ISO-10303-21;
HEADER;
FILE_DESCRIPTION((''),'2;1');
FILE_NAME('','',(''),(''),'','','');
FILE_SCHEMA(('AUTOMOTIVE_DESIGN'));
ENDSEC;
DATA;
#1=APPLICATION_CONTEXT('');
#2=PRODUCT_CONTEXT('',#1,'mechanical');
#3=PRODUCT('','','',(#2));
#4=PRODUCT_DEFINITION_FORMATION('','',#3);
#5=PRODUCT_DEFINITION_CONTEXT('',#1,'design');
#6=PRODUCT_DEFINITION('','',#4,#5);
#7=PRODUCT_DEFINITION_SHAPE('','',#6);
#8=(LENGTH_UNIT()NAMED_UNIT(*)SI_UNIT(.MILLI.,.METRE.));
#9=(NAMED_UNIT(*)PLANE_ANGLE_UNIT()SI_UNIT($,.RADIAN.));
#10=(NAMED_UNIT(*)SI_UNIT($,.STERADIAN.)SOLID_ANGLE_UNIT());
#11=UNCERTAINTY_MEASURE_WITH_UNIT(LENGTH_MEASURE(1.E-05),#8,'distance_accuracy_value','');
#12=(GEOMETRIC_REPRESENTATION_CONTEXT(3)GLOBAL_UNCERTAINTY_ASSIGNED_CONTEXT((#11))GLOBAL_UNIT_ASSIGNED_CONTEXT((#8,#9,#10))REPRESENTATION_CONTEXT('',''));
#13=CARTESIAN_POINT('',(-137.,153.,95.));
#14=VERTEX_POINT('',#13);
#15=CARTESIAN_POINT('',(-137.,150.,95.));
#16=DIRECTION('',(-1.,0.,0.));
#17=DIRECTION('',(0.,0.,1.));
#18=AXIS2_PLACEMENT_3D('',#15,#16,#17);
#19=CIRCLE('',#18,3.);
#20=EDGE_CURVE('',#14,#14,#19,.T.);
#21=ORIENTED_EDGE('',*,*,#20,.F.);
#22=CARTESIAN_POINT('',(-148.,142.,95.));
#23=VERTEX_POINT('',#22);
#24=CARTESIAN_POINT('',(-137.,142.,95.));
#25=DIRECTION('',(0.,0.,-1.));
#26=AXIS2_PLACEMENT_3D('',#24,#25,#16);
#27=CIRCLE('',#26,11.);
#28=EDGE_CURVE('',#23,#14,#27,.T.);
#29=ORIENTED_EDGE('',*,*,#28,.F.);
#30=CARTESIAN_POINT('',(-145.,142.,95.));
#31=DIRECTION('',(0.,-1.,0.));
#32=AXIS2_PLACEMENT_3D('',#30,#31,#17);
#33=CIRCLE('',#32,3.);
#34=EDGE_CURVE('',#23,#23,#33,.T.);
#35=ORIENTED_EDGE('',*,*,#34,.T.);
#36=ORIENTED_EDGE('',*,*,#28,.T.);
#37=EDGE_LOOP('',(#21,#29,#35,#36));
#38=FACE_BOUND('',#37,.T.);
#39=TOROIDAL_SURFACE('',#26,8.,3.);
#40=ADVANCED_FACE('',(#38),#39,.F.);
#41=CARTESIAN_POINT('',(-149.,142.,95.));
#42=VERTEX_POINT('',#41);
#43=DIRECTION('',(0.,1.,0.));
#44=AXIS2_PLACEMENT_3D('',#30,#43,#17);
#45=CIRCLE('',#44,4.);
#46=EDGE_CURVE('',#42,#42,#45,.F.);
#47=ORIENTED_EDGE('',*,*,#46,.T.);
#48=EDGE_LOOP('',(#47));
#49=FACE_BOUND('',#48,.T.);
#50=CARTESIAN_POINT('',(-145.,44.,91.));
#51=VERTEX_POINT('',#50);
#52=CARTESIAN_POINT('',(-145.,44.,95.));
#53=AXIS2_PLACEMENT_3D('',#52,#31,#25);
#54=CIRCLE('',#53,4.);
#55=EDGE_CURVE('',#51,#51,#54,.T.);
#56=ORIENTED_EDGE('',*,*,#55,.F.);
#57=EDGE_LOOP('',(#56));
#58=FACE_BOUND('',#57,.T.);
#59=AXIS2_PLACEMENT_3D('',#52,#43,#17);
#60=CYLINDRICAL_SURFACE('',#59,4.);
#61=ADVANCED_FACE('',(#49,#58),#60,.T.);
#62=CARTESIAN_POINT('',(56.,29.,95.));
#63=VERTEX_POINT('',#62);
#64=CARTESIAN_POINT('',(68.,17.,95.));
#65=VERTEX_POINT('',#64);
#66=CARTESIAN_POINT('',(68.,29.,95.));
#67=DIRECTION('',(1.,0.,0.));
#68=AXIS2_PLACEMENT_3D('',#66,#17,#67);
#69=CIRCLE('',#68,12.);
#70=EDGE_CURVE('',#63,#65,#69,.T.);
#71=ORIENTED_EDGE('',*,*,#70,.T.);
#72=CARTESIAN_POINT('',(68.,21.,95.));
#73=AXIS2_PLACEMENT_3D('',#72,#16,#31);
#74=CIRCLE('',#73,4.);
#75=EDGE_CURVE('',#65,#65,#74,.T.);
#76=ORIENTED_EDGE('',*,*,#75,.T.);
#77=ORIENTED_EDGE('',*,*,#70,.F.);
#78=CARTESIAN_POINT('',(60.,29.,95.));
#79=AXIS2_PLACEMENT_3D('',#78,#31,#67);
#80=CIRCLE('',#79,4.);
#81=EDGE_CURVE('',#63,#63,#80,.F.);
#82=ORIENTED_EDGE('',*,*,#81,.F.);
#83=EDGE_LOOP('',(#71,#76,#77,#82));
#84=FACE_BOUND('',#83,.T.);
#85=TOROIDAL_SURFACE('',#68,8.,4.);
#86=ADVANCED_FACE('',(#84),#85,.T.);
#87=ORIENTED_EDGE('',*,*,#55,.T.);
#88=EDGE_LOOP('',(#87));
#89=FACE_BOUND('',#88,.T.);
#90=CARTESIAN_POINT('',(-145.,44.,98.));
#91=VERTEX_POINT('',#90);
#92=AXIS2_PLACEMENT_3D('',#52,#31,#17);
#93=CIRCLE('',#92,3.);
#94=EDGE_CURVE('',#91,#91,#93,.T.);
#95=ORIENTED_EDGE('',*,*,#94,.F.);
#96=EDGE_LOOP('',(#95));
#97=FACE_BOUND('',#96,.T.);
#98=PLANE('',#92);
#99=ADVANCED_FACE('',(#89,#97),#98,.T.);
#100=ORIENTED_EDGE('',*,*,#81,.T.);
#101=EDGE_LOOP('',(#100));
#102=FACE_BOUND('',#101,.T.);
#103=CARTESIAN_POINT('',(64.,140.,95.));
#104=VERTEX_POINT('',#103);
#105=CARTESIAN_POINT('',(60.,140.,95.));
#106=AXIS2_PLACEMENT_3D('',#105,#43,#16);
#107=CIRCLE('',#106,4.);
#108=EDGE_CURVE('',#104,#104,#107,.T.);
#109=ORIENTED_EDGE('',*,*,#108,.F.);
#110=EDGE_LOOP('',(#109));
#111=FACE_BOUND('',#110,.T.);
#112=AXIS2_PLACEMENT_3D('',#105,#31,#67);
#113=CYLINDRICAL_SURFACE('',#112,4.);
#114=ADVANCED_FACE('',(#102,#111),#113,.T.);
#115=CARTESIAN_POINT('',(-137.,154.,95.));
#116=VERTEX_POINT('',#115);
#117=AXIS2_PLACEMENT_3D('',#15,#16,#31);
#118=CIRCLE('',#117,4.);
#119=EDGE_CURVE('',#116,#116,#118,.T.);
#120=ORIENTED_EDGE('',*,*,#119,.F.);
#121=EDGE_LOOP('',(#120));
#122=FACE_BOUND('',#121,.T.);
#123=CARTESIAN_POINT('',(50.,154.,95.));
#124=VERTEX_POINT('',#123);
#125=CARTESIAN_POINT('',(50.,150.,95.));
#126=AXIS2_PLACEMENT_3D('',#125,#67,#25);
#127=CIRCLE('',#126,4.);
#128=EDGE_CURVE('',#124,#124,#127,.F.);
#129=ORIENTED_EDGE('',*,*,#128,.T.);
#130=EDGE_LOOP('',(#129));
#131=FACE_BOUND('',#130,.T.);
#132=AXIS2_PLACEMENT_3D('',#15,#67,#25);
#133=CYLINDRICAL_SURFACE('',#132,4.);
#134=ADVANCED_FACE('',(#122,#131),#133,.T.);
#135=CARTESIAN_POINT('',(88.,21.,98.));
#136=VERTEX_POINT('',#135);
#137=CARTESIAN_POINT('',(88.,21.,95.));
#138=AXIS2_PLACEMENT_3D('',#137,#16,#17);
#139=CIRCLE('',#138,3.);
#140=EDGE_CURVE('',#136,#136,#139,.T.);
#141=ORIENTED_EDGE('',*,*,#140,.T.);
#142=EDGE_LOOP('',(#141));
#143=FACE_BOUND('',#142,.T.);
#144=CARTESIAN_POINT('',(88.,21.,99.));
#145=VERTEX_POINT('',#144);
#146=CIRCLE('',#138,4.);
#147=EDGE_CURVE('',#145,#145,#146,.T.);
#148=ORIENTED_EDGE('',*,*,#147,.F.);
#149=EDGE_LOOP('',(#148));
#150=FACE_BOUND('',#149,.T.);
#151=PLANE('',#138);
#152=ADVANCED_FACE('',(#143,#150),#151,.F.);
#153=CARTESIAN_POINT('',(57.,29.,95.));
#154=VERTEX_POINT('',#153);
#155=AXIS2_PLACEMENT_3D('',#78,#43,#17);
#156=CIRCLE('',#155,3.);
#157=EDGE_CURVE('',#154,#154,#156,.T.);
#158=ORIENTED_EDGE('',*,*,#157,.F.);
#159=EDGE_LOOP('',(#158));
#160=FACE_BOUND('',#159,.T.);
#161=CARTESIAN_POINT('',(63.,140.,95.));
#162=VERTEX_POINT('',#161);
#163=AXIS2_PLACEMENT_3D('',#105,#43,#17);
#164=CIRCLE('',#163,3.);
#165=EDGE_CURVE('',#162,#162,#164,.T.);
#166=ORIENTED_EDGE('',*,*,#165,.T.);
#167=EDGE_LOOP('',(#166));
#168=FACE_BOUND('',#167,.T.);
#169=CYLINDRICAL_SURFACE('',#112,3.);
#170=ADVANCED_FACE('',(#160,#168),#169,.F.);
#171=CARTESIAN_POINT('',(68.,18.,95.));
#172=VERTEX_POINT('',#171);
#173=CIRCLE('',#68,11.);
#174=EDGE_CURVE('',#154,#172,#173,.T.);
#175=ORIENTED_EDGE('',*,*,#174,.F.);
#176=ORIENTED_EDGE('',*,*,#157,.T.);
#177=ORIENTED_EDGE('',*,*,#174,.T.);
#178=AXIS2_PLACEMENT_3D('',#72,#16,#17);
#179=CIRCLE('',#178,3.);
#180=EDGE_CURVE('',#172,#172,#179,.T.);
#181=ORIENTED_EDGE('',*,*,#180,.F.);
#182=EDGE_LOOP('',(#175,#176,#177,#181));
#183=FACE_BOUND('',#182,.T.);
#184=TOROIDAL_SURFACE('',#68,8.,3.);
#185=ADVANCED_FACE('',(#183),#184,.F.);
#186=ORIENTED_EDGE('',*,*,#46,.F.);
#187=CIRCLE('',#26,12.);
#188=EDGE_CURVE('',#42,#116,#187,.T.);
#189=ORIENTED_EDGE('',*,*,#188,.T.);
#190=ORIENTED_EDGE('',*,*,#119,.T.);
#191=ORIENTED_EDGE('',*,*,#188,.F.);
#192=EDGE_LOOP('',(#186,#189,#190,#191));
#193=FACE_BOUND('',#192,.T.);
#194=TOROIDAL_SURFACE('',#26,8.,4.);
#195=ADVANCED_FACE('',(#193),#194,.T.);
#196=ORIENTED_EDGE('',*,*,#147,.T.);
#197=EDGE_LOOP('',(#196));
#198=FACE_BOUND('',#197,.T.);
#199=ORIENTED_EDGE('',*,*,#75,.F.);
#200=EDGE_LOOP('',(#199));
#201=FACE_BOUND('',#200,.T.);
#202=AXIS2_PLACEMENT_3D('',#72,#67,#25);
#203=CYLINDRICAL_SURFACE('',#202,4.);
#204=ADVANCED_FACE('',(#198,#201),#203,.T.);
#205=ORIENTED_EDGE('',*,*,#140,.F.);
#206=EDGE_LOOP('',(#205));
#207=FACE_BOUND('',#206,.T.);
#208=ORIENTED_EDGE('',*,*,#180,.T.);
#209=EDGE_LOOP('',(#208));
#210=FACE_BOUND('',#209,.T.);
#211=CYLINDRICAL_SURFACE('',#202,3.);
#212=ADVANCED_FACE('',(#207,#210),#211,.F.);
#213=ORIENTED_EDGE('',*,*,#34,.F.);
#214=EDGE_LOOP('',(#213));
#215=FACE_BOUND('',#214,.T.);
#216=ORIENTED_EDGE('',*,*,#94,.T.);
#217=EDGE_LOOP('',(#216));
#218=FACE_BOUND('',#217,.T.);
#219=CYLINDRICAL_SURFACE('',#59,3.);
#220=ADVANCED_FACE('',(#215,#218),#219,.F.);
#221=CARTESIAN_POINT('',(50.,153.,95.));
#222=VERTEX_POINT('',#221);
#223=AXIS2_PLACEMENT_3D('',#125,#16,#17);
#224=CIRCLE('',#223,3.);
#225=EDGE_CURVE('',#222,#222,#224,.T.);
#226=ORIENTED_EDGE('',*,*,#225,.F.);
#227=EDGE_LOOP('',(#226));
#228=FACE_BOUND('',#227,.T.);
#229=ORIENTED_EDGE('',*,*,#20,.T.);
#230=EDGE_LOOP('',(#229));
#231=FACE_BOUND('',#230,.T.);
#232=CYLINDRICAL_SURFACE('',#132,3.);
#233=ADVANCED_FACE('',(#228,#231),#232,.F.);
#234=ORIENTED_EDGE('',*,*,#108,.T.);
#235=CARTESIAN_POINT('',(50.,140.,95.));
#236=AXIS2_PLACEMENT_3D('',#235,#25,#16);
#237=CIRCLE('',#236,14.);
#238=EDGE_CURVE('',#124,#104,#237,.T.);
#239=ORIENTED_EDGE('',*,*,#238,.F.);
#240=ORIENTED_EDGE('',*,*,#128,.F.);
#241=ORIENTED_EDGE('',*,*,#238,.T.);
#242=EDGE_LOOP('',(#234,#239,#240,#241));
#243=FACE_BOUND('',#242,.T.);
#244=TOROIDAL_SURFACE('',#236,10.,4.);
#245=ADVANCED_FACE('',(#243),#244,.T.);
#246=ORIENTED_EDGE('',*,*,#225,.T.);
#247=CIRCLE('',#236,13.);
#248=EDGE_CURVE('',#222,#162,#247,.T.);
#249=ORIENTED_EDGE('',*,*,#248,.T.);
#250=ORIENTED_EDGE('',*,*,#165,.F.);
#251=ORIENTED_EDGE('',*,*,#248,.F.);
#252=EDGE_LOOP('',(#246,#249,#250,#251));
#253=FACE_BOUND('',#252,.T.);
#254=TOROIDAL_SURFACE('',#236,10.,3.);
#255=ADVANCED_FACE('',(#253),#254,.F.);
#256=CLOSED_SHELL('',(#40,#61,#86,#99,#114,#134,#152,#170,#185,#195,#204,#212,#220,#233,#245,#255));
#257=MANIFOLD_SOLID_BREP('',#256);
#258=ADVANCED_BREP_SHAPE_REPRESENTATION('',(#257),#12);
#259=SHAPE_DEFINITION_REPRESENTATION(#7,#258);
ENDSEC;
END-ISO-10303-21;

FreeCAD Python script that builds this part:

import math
import FreeCAD as App
import Part
import Sketcher

V = App.Vector
Q = App.Units.Quantity

doc = App.newDocument("Part")
body = doc.addObject("PartDesign::Body", "Body")

# Sketch on XZ plane
sketch1 = doc.addObject("Sketcher::SketchObject", "Sketch")
body.addObject(sketch1)
sketch1.AttachmentSupport = (doc.XZ_Plane, [""])
sketch1.MapMode = "FlatFace"
sketch1.AttachmentOffset = App.Placement(V(0, 0, -44), App.Rotation())
sketch1.addGeometry([
    Part.Circle(V(-145, 95, 0), V(0, 0, 1), 4),
    Part.Circle(V(-145, 95, 0), V(0, 0, 1), 3),
], False)
sketch1.addConstraint([
    Sketcher.Constraint("Coincident", 1, 3, 0, 3),
    Sketcher.Constraint("Diameter", 0, Q("8 mm")),
    Sketcher.Constraint("Diameter", 1, Q("6 mm")),
    Sketcher.Constraint("DistanceX", 0, 3, -1, 1, Q("145 mm")),
    Sketcher.Constraint("DistanceY", -1, 1, 0, 3, Q("95 mm")),
])

# Sketch on XY plane
sketch2 = doc.addObject("Sketcher::SketchObject", "Sketch001")
body.addObject(sketch2)
sketch2.AttachmentSupport = (doc.XY_Plane, [""])
sketch2.MapMode = "FlatFace"
sketch2.AttachmentOffset = App.Placement(V(0, 0, 95), App.Rotation())
sketch2.addGeometry([
    Part.LineSegment(V(-145, 44, 0), V(-145, 142, 0)),  # 0
    Part.ArcOfCircle(Part.Circle(V(-137, 142, 0), V(0, 0, 1), 8), math.radians(90), math.radians(180)),  # 1
    Part.LineSegment(V(-137, 150, 0), V(50, 150, 0)),  # 2
    Part.ArcOfCircle(Part.Circle(V(50, 140, 0), V(0, 0, 1), 10), math.radians(0), math.radians(90)),  # 3
    Part.LineSegment(V(60, 140, 0), V(60, 29, 0)),  # 4
    Part.ArcOfCircle(Part.Circle(V(68, 29, 0), V(0, 0, 1), 8), math.radians(-180), math.radians(-90)),  # 5
    Part.LineSegment(V(68, 21, 0), V(88, 21, 0)),  # 6
], False)
sketch2.addConstraint([
    Sketcher.Constraint("Tangent", 0, 2, 1, 2),
    Sketcher.Constraint("Tangent", 1, 1, 2, 1),
    Sketcher.Constraint("Tangent", 2, 2, 3, 2),
    Sketcher.Constraint("Tangent", 3, 1, 4, 1),
    Sketcher.Constraint("Tangent", 4, 2, 5, 1),
    Sketcher.Constraint("Tangent", 5, 2, 6, 1),
    Sketcher.Constraint("Vertical", 0),
    Sketcher.Constraint("Horizontal", 2),
    Sketcher.Constraint("Vertical", 4),
    Sketcher.Constraint("Horizontal", 6),
    Sketcher.Constraint("Equal", 1, 5),
    Sketcher.Constraint("Radius", 1, Q("8 mm")),
    Sketcher.Constraint("Radius", 3, Q("10 mm")),
    Sketcher.Constraint("DistanceX", 2, 1, 2, 2, Q("187 mm")),
    Sketcher.Constraint("DistanceX", 6, 1, 6, 2, Q("20 mm")),
    Sketcher.Constraint("DistanceY", 0, 1, 0, 2, Q("98 mm")),
    Sketcher.Constraint("DistanceY", 4, 2, 4, 1, Q("111 mm")),
    Sketcher.Constraint("DistanceX", 1, 3, -1, 1, Q("137 mm")),
    Sketcher.Constraint("DistanceY", -1, 1, 1, 3, Q("142 mm")),
])
doc.recompute()

additivepipe = doc.addObject("PartDesign::AdditivePipe", "AdditivePipe")
body.addObject(additivepipe)
additivepipe.Profile = sketch1
additivepipe.Spine = (sketch2, ["Edge1", "Edge2", "Edge3", "Edge4", "Edge5", "Edge6", "Edge7"])

doc.recompute()
